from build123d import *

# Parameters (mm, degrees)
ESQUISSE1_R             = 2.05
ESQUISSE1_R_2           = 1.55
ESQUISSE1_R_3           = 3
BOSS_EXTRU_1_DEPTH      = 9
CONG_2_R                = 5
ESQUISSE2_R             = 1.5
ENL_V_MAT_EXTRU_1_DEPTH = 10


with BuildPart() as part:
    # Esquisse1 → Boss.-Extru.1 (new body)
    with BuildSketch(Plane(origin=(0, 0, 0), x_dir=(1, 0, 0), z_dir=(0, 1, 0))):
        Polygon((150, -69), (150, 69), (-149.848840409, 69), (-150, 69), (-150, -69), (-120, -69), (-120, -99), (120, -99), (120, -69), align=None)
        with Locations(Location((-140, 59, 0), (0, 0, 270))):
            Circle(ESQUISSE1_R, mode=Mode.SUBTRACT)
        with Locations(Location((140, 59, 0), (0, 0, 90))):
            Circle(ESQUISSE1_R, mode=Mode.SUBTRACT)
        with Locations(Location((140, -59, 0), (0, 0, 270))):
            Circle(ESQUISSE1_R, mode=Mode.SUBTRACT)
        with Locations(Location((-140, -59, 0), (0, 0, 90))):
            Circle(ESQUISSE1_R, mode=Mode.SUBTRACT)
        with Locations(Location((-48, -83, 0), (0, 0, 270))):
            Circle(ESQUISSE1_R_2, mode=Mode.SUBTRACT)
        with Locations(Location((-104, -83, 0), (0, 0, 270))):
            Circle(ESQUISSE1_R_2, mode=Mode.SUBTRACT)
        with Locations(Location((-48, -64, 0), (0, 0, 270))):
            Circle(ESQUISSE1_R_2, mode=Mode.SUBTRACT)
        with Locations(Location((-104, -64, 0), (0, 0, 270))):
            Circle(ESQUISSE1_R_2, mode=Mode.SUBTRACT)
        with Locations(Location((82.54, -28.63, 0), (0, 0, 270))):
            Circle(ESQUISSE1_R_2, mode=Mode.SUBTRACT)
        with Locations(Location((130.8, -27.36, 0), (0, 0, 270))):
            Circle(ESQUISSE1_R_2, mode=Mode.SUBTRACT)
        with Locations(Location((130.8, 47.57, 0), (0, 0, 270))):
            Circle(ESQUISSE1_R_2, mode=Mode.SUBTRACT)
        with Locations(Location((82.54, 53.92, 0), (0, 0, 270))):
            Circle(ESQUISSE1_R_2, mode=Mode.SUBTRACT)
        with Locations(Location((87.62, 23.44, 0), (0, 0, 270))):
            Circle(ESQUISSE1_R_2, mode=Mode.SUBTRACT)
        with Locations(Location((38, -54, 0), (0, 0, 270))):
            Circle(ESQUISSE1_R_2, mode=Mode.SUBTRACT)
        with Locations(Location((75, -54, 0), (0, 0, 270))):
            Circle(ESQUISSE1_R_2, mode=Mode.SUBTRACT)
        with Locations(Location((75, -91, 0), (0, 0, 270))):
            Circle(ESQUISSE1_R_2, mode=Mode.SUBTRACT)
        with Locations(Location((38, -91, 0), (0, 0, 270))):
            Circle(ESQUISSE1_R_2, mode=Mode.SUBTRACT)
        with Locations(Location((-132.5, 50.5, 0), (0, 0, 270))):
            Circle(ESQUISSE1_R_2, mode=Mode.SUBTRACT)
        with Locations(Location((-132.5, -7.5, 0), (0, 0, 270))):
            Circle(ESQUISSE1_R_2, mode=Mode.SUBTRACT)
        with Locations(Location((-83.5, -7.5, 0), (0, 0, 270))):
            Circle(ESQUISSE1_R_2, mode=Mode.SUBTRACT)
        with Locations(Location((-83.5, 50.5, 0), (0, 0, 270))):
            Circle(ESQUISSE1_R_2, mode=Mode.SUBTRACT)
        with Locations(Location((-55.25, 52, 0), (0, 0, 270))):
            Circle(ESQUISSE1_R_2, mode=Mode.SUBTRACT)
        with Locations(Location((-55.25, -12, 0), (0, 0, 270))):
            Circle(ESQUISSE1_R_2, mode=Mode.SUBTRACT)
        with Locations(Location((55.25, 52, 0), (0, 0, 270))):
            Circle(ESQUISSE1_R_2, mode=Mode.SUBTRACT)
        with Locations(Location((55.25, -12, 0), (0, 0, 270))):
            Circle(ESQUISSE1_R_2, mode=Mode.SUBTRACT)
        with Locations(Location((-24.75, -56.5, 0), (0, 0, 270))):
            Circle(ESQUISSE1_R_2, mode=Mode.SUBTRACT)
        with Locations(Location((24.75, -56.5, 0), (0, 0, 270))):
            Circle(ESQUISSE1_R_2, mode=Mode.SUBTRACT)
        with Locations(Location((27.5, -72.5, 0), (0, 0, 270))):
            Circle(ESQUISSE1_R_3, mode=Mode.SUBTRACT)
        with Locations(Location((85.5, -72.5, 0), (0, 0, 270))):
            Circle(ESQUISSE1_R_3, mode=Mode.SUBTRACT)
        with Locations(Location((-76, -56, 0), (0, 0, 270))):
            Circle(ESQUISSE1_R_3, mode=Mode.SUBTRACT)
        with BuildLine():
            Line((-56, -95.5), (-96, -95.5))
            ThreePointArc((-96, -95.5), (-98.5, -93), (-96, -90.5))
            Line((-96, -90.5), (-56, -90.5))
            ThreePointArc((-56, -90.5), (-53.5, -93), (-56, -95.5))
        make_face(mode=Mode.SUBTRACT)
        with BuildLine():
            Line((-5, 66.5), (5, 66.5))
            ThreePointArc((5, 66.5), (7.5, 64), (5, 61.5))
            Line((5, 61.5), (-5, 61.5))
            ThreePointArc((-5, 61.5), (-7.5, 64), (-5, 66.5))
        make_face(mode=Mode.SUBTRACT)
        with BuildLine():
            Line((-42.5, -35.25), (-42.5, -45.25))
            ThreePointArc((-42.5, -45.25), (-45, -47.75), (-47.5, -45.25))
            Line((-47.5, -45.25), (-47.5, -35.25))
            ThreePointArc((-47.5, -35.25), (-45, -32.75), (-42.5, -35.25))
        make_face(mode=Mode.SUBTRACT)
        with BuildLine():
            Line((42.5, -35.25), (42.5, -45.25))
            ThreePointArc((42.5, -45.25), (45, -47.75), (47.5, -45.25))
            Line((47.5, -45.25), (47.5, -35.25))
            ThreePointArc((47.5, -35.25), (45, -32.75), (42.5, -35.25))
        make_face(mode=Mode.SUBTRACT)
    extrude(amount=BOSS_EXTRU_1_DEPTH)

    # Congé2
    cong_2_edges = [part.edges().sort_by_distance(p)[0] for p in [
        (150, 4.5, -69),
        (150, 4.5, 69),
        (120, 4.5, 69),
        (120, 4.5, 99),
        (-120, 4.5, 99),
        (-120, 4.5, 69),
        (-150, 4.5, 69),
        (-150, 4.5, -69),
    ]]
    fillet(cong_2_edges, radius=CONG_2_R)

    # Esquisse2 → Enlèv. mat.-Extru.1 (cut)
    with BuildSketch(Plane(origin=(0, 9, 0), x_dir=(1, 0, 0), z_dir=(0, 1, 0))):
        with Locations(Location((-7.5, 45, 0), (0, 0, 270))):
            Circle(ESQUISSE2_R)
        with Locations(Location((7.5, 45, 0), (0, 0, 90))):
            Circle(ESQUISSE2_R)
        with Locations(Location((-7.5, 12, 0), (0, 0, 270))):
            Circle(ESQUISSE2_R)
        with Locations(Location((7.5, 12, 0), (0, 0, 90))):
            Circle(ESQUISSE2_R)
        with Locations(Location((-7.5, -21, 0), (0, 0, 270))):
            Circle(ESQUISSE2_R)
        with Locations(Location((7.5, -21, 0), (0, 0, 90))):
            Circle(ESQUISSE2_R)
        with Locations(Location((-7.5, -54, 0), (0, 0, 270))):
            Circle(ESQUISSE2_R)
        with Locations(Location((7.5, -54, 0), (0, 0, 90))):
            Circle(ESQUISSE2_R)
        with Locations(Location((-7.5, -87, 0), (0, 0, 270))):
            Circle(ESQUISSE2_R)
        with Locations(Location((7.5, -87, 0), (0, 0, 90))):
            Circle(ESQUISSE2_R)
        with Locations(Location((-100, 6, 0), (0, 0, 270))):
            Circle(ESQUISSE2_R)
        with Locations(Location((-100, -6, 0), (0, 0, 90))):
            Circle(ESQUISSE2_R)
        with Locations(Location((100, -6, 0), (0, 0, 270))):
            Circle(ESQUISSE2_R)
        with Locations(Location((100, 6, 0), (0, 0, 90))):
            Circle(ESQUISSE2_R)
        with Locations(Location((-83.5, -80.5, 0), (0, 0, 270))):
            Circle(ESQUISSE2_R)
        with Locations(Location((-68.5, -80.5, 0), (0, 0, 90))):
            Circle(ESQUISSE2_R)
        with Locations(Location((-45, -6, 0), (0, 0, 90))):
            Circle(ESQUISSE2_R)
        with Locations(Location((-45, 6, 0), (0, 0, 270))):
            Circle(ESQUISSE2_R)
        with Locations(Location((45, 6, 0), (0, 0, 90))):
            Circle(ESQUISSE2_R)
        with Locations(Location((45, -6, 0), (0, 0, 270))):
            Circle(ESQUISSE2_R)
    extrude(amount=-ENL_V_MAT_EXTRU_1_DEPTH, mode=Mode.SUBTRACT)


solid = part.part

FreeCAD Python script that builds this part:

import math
import FreeCAD as App
import Part
import Sketcher
from FreeCAD import Vector


def edges_at(feature, points):
    """Names of the edges that pass closest to the given points."""
    edges = feature.Shape.Edges
    near = lambda p: min(range(len(edges)), key=lambda i: edges[i].distToShape(Part.Vertex(*p))[0])
    return sorted({f"Edge{near(p) + 1}" for p in points})

doc = App.newDocument("Part")
body = doc.addObject("PartDesign::Body", "Body")

# Sketch on XZ plane
sketch1 = body.newObject("Sketcher::SketchObject", "Sketch")
sketch1.AttachmentSupport = (doc.getObject("XZ_Plane"), [""])
sketch1.MapMode = "FlatFace"
sketch1.addGeometry([
    Part.LineSegment(Vector(150, 69, 0), Vector(150, -69, 0)),  # 0
    Part.LineSegment(Vector(150, -69, 0), Vector(-150, -69, 0)),  # 1
    Part.LineSegment(Vector(-150, -69, 0), Vector(-150, 69, 0)),  # 2
    Part.LineSegment(Vector(-150, 69, 0), Vector(-120, 69, 0)),  # 3
    Part.LineSegment(Vector(-120, 69, 0), Vector(-120, 99, 0)),  # 4
    Part.LineSegment(Vector(-120, 99, 0), Vector(120, 99, 0)),  # 5
    Part.LineSegment(Vector(120, 99, 0), Vector(120, 69, 0)),  # 6
    Part.LineSegment(Vector(120, 69, 0), Vector(150, 69, 0)),  # 7
    Part.ArcOfCircle(Part.Circle(Vector(-56, 93, 0), Vector(0, 0, 1), 2.5), math.radians(-90), math.radians(90)),  # 8
    Part.LineSegment(Vector(-56, 95.5, 0), Vector(-96, 95.5, 0)),  # 9
    Part.ArcOfCircle(Part.Circle(Vector(-96, 93, 0), Vector(0, 0, 1), 2.5), math.radians(90), math.radians(270)),  # 10
    Part.LineSegment(Vector(-96, 90.5, 0), Vector(-56, 90.5, 0)),  # 11
    Part.Circle(Vector(-104, 83, 0), Vector(0, 0, 1), 1.6),  # 12
    Part.Circle(Vector(-140, 59, 0), Vector(0, 0, 1), 2),  # 13
    Part.Circle(Vector(-104, 64, 0), Vector(0, 0, 1), 1.6),  # 14
    Part.Circle(Vector(-76, 56, 0), Vector(0, 0, 1), 3),  # 15
    Part.Circle(Vector(-48, 83, 0), Vector(0, 0, 1), 1.6),  # 16
    Part.Circle(Vector(-48, 64, 0), Vector(0, 0, 1), 1.6),  # 17
    Part.Circle(Vector(-24.8, 56.5, 0), Vector(0, 0, 1), 1.6),  # 18
    Part.ArcOfCircle(Part.Circle(Vector(-45, 35.2, 0), Vector(0, 0, 1), 2.5), math.radians(180), math.radians(360)),  # 19
    Part.LineSegment(Vector(-42.5, 35.2, 0), Vector(-42.5, 45.2, 0)),  # 20
    Part.ArcOfCircle(Part.Circle(Vector(-45, 45.2, 0), Vector(0, 0, 1), 2.5), math.radians(0), math.radians(180)),  # 21
    Part.LineSegment(Vector(-47.5, 45.2, 0), Vector(-47.5, 35.2, 0)),  # 22
    Part.Circle(Vector(38, 91, 0), Vector(0, 0, 1), 1.6),  # 23
    Part.Circle(Vector(27.5, 72.5, 0), Vector(0, 0, 1), 3),  # 24
    Part.Circle(Vector(24.8, 56.5, 0), Vector(0, 0, 1), 1.6),  # 25
    Part.Circle(Vector(75, 91, 0), Vector(0, 0, 1), 1.6),  # 26
    Part.Circle(Vector(85.5, 72.5, 0), Vector(0, 0, 1), 3),  # 27
    Part.Circle(Vector(140, 59, 0), Vector(0, 0, 1), 2),  # 28
    Part.Circle(Vector(38, 54, 0), Vector(0, 0, 1), 1.6),  # 29
    Part.LineSegment(Vector(42.5, 45.2, 0), Vector(42.5, 35.2, 0)),  # 30
    Part.ArcOfCircle(Part.Circle(Vector(45, 35.2, 0), Vector(0, 0, 1), 2.5), math.radians(180), math.radians(360)),  # 31
    Part.LineSegment(Vector(47.5, 35.2, 0), Vector(47.5, 45.2, 0)),  # 32
    Part.ArcOfCircle(Part.Circle(Vector(45, 45.2, 0), Vector(0, 0, 1), 2.5), math.radians(0), math.radians(180)),  # 33
    Part.Circle(Vector(75, 54, 0), Vector(0, 0, 1), 1.6),  # 34
    Part.Circle(Vector(82.5, 28.6, 0), Vector(0, 0, 1), 1.6),  # 35
    Part.Circle(Vector(130.8, 27.4, 0), Vector(0, 0, 1), 1.6),  # 36
    Part.Circle(Vector(-132.5, 7.5, 0), Vector(0, 0, 1), 1.6),  # 37
    Part.Circle(Vector(-83.5, 7.5, 0), Vector(0, 0, 1), 1.6),  # 38
    Part.Circle(Vector(-55.2, 12, 0), Vector(0, 0, 1), 1.6),  # 39
    Part.Circle(Vector(-132.5, -50.5, 0), Vector(0, 0, 1), 1.6),  # 40
    Part.Circle(Vector(-140, -59, 0), Vector(0, 0, 1), 2),  # 41
    Part.Circle(Vector(-83.5, -50.5, 0), Vector(0, 0, 1), 1.6),  # 42
    Part.Circle(Vector(-55.2, -52, 0), Vector(0, 0, 1), 1.6),  # 43
    Part.Circle(Vector(55.2, 12, 0), Vector(0, 0, 1), 1.6),  # 44
    Part.Circle(Vector(87.6, -23.4, 0), Vector(0, 0, 1), 1.6),  # 45
    Part.ArcOfCircle(Part.Circle(Vector(-5, -64, 0), Vector(0, 0, 1), 2.5), math.radians(90), math.radians(270)),  # 46
    Part.LineSegment(Vector(-5, -66.5, 0), Vector(5, -66.5, 0)),  # 47
    Part.ArcOfCircle(Part.Circle(Vector(5, -64, 0), Vector(0, 0, 1), 2.5), math.radians(-90), math.radians(90)),  # 48
    Part.LineSegment(Vector(5, -61.5, 0), Vector(-5, -61.5, 0)),  # 49
    Part.Circle(Vector(55.2, -52, 0), Vector(0, 0, 1), 1.6),  # 50
    Part.Circle(Vector(82.5, -53.9, 0), Vector(0, 0, 1), 1.6),  # 51
    Part.Circle(Vector(130.8, -47.6, 0), Vector(0, 0, 1), 1.6),  # 52
    Part.Circle(Vector(140, -59, 0), Vector(0, 0, 1), 2),  # 53
], False)
sketch1.addConstraint([
    Sketcher.Constraint("Coincident", 0, 2, 1, 1),
    Sketcher.Constraint("Coincident", 1, 2, 2, 1),
    Sketcher.Constraint("Coincident", 2, 2, 3, 1),
    Sketcher.Constraint("Coincident", 3, 2, 4, 1),
    Sketcher.Constraint("Coincident", 4, 2, 5, 1),
    Sketcher.Constraint("Coincident", 5, 2, 6, 1),
    Sketcher.Constraint("Coincident", 6, 2, 7, 1),
    Sketcher.Constraint("Coincident", 7, 2, 0, 1),
    Sketcher.Constraint("Tangent", 8, 2, 9, 1),
    Sketcher.Constraint("Tangent", 9, 2, 10, 1),
    Sketcher.Constraint("Tangent", 10, 2, 11, 1),
    Sketcher.Constraint("Tangent", 11, 2, 8, 1),
    Sketcher.Constraint("Tangent", 19, 2, 20, 1),
    Sketcher.Constraint("Tangent", 20, 2, 21, 1),
    Sketcher.Constraint("Tangent", 21, 2, 22, 1),
    Sketcher.Constraint("Tangent", 22, 2, 19, 1),
    Sketcher.Constraint("Tangent", 30, 2, 31, 1),
    Sketcher.Constraint("Tangent", 31, 2, 32, 1),
    Sketcher.Constraint("Tangent", 32, 2, 33, 1),
    Sketcher.Constraint("Tangent", 33, 2, 30, 1),
    Sketcher.Constraint("Tangent", 46, 2, 47, 1),
    Sketcher.Constraint("Tangent", 47, 2, 48, 1),
    Sketcher.Constraint("Tangent", 48, 2, 49, 1),
    Sketcher.Constraint("Tangent", 49, 2, 46, 1),
    Sketcher.Constraint("Vertical", 0),
    Sketcher.Constraint("Horizontal", 1),
    Sketcher.Constraint("Vertical", 2),
    Sketcher.Constraint("Horizontal", 3),
    Sketcher.Constraint("Vertical", 4),
    Sketcher.Constraint("Horizontal", 5),
    Sketcher.Constraint("Vertical", 6),
    Sketcher.Constraint("Horizontal", 7),
    Sketcher.Constraint("Horizontal", 9),
    Sketcher.Constraint("Horizontal", 11),
    Sketcher.Constraint("Vertical", 20),
    Sketcher.Constraint("Vertical", 22),
    Sketcher.Constraint("Vertical", 30),
    Sketcher.Constraint("Vertical", 32),
    Sketcher.Constraint("Horizontal", 47),
    Sketcher.Constraint("Horizontal", 49),
    Sketcher.Constraint("Equal", 12, 14),
    Sketcher.Constraint("Equal", 14, 16),
    Sketcher.Constraint("Equal", 16, 17),
    Sketcher.Constraint("Equal", 17, 18),
    Sketcher.Constraint("Equal", 10, 19),
    Sketcher.Constraint("Equal", 18, 23),
    Sketcher.Constraint("Equal", 15, 24),
    Sketcher.Constraint("Equal", 23, 25),
    Sketcher.Constraint("Equal", 25, 26),
    Sketcher.Constraint("Equal", 24, 27),
    Sketcher.Constraint("Equal", 13, 28),
    Sketcher.Constraint("Equal", 26, 29),
    Sketcher.Constraint("Equal", 21, 31),
    Sketcher.Constraint("Equal", 29, 34),
    Sketcher.Constraint("Equal", 34, 35),
    Sketcher.Constraint("Equal", 35, 36),
    Sketcher.Constraint("Equal", 36, 37),
    Sketcher.Constraint("Equal", 37, 38),
    Sketcher.Constraint("Equal", 38, 39),
    Sketcher.Constraint("Equal", 39, 40),
    Sketcher.Constraint("Equal", 28, 41),
    Sketcher.Constraint("Equal", 40, 42),
    Sketcher.Constraint("Equal", 42, 43),
    Sketcher.Constraint("Equal", 43, 44),
    Sketcher.Constraint("Equal", 44, 45),
    Sketcher.Constraint("Equal", 33, 46),
    Sketcher.Constraint("Equal", 45, 50),
    Sketcher.Constraint("Equal", 50, 51),
    Sketcher.Constraint("Equal", 51, 52),
    Sketcher.Constraint("Equal", 41, 53),
    Sketcher.Constraint("Symmetric", 28, 3, 41, 3, -1, 1),
    Sketcher.Constraint("Symmetric", 13, 3, 53, 3, -1, 1),
    Sketcher.Constraint("Symmetric", 0, 2, 2, 2, -1, 1),
    Sketcher.Constraint("Symmetric", 18, 3, 25, 3, -2),
    Sketcher.Constraint("Symmetric", 13, 3, 28, 3, -2),
    Sketcher.Constraint("Symmetric", 19, 3, 31, 3, -2),
    Sketcher.Constraint("Symmetric", 39, 3, 44, 3, -2),
    Sketcher.Constraint("Symmetric", 43, 3, 50, 3, -2),
    Sketcher.Constraint("Symmetric", 3, 2, 6, 2, -2),
    Sketcher.Constraint("Horizontal", 12, 3, 16, 3),
    Sketcher.Constraint("Horizontal", 14, 3, 17, 3),
    Sketcher.Constraint("Horizontal", 23, 3, 26, 3),
    Sketcher.Constraint("Horizontal", 24, 3, 27, 3),
    Sketcher.Constraint("Horizontal", 21, 3, 33, 3),
    Sketcher.Constraint("Horizontal", 29, 3, 34, 3),
    Sketcher.Constraint("Horizontal", 37, 3, 38, 3),
    Sketcher.Constraint("Horizontal", 40, 3, 42, 3),
    Sketcher.Constraint("Vertical", 12, 3, 14, 3),
    Sketcher.Constraint("Vertical", 16, 3, 17, 3),
    Sketcher.Constraint("Vertical", 23, 3, 29, 3),
    Sketcher.Constraint("Vertical", 26, 3, 34, 3),
    Sketcher.Constraint("Vertical", 37, 3, 40, 3),
    Sketcher.Constraint("Vertical", 38, 3, 42, 3),
    Sketcher.Constraint("Vertical", 39, 3, 43, 3),
    Sketcher.Constraint("Vertical", 35, 3, 51, 3),
    Sketcher.Constraint("Vertical", 36, 3, 52, 3),
    Sketcher.Constraint("Equal", 7, 4),
    Sketcher.Constraint("Equal", 49, 20),
    Sketcher.Constraint("Diameter", 15, 6.0),
    Sketcher.Constraint("Diameter", 12, 3.1),
    Sketcher.Constraint("Diameter", 13, 4.1),
    Sketcher.Constraint("Radius", 8, 2.5),
    Sketcher.Constraint("DistanceX", 1, 2, 1, 1, 300.0),
    Sketcher.Constraint("DistanceX", 3, 1, 3, 2, 30.0),
    Sketcher.Constraint("DistanceX", 9, 2, 9, 1, 40.0),
    Sketcher.Constraint("DistanceX", 47, 1, 47, 2, 10.0),
    Sketcher.Constraint("DistanceY", 0, 2, 0, 1, 138.0),
    Sketcher.Constraint("DistanceX", 8, 3, -1, 1, 56.0),
    Sketcher.Constraint("DistanceY", -1, 1, 8, 3, 93.0),
    Sketcher.Constraint("DistanceX", 12, 3, -1, 1, 104.0),
    Sketcher.Constraint("DistanceY", -1, 1, 12, 3, 83.0),
    Sketcher.Constraint("DistanceX", 13, 3, -1, 1, 140.0),
    Sketcher.Constraint("DistanceY", -1, 1, 13, 3, 59.0),
    Sketcher.Constraint("DistanceY", -1, 1, 14, 3, 64.0),
    Sketcher.Constraint("DistanceX", 15, 3, -1, 1, 76.0),
    Sketcher.Constraint("DistanceY", -1, 1, 15, 3, 56.0),
    Sketcher.Constraint("DistanceX", 16, 3, -1, 1, 48.0),
    Sketcher.Constraint("DistanceX", 19, 3, -1, 1, 45.0),
    Sketcher.Constraint("DistanceX", -1, 1, 23, 3, 38.0),
    Sketcher.Constraint("DistanceY", -1, 1, 23, 3, 91.0),
    Sketcher.Constraint("DistanceX", -1, 1, 26, 3, 75.0),
    Sketcher.Constraint("DistanceY", -1, 1, 29, 3, 54.0),
    Sketcher.Constraint("DistanceY", -1, 1, 39, 3, 12.0),
    Sketcher.Constraint("DistanceY", 43, 3, -1, 1, 52.0),
    Sketcher.Constraint("DistanceX", 46, 3, -1, 1, 5.0),
    Sketcher.Constraint("DistanceY", 46, 3, -1, 1, 64.0),
    Sketcher.Constraint("DistanceY", -1, 1, 18, 3, 56.5),
    Sketcher.Constraint("DistanceX", -1, 1, 24, 3, 27.5),
    Sketcher.Constraint("DistanceY", -1, 1, 24, 3, 72.5),
    Sketcher.Constraint("DistanceX", -1, 1, 27, 3, 85.5),
    Sketcher.Constraint("DistanceX", -1, 1, 36, 3, 130.8),
    Sketcher.Constraint("DistanceX", 37, 3, -1, 1, 132.5),
    Sketcher.Constraint("DistanceY", -1, 1, 37, 3, 7.5),
    Sketcher.Constraint("DistanceX", 38, 3, -1, 1, 83.5),
    Sketcher.Constraint("DistanceY", 40, 3, -1, 1, 50.5),
    Sketcher.Constraint("DistanceX", 18, 3, -1, 1, 24.75),
    Sketcher.Constraint("DistanceY", -1, 1, 19, 3, 35.25),
    Sketcher.Constraint("DistanceX", -1, 1, 35, 3, 82.54),
    Sketcher.Constraint("DistanceY", -1, 1, 35, 3, 28.63),
    Sketcher.Constraint("DistanceY", -1, 1, 36, 3, 27.36),
    Sketcher.Constraint("DistanceX", 39, 3, -1, 1, 55.25),
    Sketcher.Constraint("DistanceX", -1, 1, 45, 3, 87.62),
    Sketcher.Constraint("DistanceY", 45, 3, -1, 1, 23.44),
    Sketcher.Constraint("DistanceY", 51, 3, -1, 1, 53.92),
    Sketcher.Constraint("DistanceY", 52, 3, -1, 1, 47.57),
])
pad1 = body.newObject("PartDesign::Pad", "Pad")
pad1.Profile = sketch1
pad1.Length = 9
pad1.Reversed = True
doc.recompute()

fillet = body.newObject("PartDesign::Fillet", "Fillet")
fillet.Base = (pad1, edges_at(pad1, [
    (150, 4.5, -69),
    (150, 4.5, 69),
    (120, 4.5, 69),
    (120, 4.5, 99),
    (-120, 4.5, 99),
    (-120, 4.5, 69),
    (-150, 4.5, 69),
    (-150, 4.5, -69),
]))
fillet.Radius = 5

# Sketch on XZ plane
sketch2 = body.newObject("Sketcher::SketchObject", "Sketch001")
sketch2.AttachmentSupport = (doc.getObject("XZ_Plane"), [""])
sketch2.MapMode = "FlatFace"
sketch2.AttachmentOffset = App.Placement(Vector(0, 0, -9), App.Rotation())
sketch2.addGeometry([
    Part.Circle(Vector(-7.5, -45, 0), Vector(0, 0, 1), 1.5),  # 0
    Part.Circle(Vector(7.5, -45, 0), Vector(0, 0, 1), 1.5),  # 1
    Part.Circle(Vector(-7.5, -12, 0), Vector(0, 0, 1), 1.5),  # 2
    Part.Circle(Vector(7.5, -12, 0), Vector(0, 0, 1), 1.5),  # 3
    Part.Circle(Vector(-7.5, 21, 0), Vector(0, 0, 1), 1.5),  # 4
    Part.Circle(Vector(7.5, 21, 0), Vector(0, 0, 1), 1.5),  # 5
    Part.Circle(Vector(-7.5, 54, 0), Vector(0, 0, 1), 1.5),  # 6
    Part.Circle(Vector(7.5, 54, 0), Vector(0, 0, 1), 1.5),  # 7
    Part.Circle(Vector(-7.5, 87, 0), Vector(0, 0, 1), 1.5),  # 8
    Part.Circle(Vector(7.5, 87, 0), Vector(0, 0, 1), 1.5),  # 9
    Part.Circle(Vector(-100, -6, 0), Vector(0, 0, 1), 1.5),  # 10
    Part.Circle(Vector(-100, 6, 0), Vector(0, 0, 1), 1.5),  # 11
    Part.Circle(Vector(100, 6, 0), Vector(0, 0, 1), 1.5),  # 12
    Part.Circle(Vector(100, -6, 0), Vector(0, 0, 1), 1.5),  # 13
    Part.Circle(Vector(-83.5, 80.5, 0), Vector(0, 0, 1), 1.5),  # 14
    Part.Circle(Vector(-68.5, 80.5, 0), Vector(0, 0, 1), 1.5),  # 15
    Part.Circle(Vector(-45, 6, 0), Vector(0, 0, 1), 1.5),  # 16
    Part.Circle(Vector(-45, -6, 0), Vector(0, 0, 1), 1.5),  # 17
    Part.Circle(Vector(45, -6, 0), Vector(0, 0, 1), 1.5),  # 18
    Part.Circle(Vector(45, 6, 0), Vector(0, 0, 1), 1.5),  # 19
], False)
sketch2.addConstraint([
    Sketcher.Constraint("Equal", 0, 1),
    Sketcher.Constraint("Equal", 1, 2),
    Sketcher.Constraint("Equal", 2, 3),
    Sketcher.Constraint("Equal", 3, 4),
    Sketcher.Constraint("Equal", 4, 5),
    Sketcher.Constraint("Equal", 5, 6),
    Sketcher.Constraint("Equal", 6, 7),
    Sketcher.Constraint("Equal", 7, 8),
    Sketcher.Constraint("Equal", 8, 9),
    Sketcher.Constraint("Equal", 9, 10),
    Sketcher.Constraint("Equal", 10, 11),
    Sketcher.Constraint("Equal", 11, 12),
    Sketcher.Constraint("Equal", 12, 13),
    Sketcher.Constraint("Equal", 13, 14),
    Sketcher.Constraint("Equal", 14, 15),
    Sketcher.Constraint("Equal", 15, 16),
    Sketcher.Constraint("Equal", 16, 17),
    Sketcher.Constraint("Equal", 17, 18),
    Sketcher.Constraint("Equal", 18, 19),
    Sketcher.Constraint("Symmetric", 10, 3, 12, 3, -1, 1),
    Sketcher.Constraint("Symmetric", 11, 3, 13, 3, -1, 1),
    Sketcher.Constraint("Symmetric", 16, 3, 18, 3, -1, 1),
    Sketcher.Constraint("Symmetric", 17, 3, 19, 3, -1, 1),
    Sketcher.Constraint("Symmetric", 0, 3, 1, 3, -2),
    Sketcher.Constraint("Symmetric", 2, 3, 3, 3, -2),
    Sketcher.Constraint("Symmetric", 4, 3, 5, 3, -2),
    Sketcher.Constraint("Symmetric", 6, 3, 7, 3, -2),
    Sketcher.Constraint("Symmetric", 8, 3, 9, 3, -2),
    Sketcher.Constraint("Symmetric", 11, 3, 12, 3, -2),
    Sketcher.Constraint("Symmetric", 17, 3, 18, 3, -2),
    Sketcher.Constraint("Horizontal", 14, 3, 15, 3),
    Sketcher.Constraint("Horizontal", 12, 3, 16, 3),
    Sketcher.Constraint("Vertical", 0, 3, 2, 3),
    Sketcher.Constraint("Vertical", 2, 3, 4, 3),
    Sketcher.Constraint("Vertical", 4, 3, 6, 3),
    Sketcher.Constraint("Vertical", 6, 3, 8, 3),
    Sketcher.Constraint("Diameter", 0, 3.0),
    Sketcher.Constraint("DistanceY", 0, 3, -1, 1, 45.0),
    Sketcher.Constraint("DistanceY", 2, 3, -1, 1, 12.0),
    Sketcher.Constraint("DistanceY", -1, 1, 4, 3, 21.0),
    Sketcher.Constraint("DistanceY", -1, 1, 6, 3, 54.0),
    Sketcher.Constraint("DistanceY", -1, 1, 8, 3, 87.0),
    Sketcher.Constraint("DistanceX", 10, 3, -1, 1, 100.0),
    Sketcher.Constraint("DistanceY", 10, 3, -1, 1, 6.0),
    Sketcher.Constraint("DistanceX", 16, 3, -1, 1, 45.0),
    Sketcher.Constraint("DistanceX", 0, 3, 1, 3, 15.0),
    Sketcher.Constraint("DistanceX", 14, 3, 8, 3, 76.0),
    Sketcher.Constraint("DistanceX", 14, 3, 15, 3, 15.0),
    Sketcher.Constraint("DistanceY", -1, 1, 14, 3, 80.5),
])
pocket1 = body.newObject("PartDesign::Pocket", "Pocket")
pocket1.Profile = sketch2
pocket1.Length = 10
pocket1.Reversed = True

doc.recompute()
